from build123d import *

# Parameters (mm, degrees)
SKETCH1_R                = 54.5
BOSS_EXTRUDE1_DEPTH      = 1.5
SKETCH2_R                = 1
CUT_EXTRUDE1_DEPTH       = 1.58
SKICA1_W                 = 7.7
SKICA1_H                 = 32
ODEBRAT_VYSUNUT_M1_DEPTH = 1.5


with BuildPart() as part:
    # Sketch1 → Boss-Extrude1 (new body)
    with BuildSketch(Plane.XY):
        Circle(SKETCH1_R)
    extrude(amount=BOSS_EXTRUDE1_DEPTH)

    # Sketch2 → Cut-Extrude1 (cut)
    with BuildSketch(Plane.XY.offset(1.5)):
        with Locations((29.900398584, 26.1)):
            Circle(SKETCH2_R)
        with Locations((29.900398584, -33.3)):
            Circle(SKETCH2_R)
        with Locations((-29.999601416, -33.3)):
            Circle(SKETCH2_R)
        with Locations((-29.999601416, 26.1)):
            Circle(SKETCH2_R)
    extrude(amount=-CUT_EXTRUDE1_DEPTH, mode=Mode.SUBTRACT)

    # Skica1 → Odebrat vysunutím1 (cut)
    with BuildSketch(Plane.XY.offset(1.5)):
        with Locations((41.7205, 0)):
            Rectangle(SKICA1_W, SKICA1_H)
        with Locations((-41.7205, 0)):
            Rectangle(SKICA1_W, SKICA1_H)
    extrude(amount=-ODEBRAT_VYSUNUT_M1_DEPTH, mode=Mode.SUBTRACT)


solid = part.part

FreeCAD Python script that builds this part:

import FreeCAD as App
import Part
import Sketcher
Q = App.Units.Quantity

doc = App.newDocument("Part")
body = doc.addObject("PartDesign::Body", "Body")

sketch1 = body.newObject("Sketcher::SketchObject", "Sketch")
sketch1.AttachmentSupport = (doc.getObject("XY_Plane"), [""])
sketch1.MapMode = "FlatFace"
sketch1.addGeometry(Part.Circle(App.Vector(0, 0, 0), App.Vector(0, 0, 1), 54.5), False)
sketch1.addConstraint([
    Sketcher.Constraint("Coincident", 0, 3, -1, 1),
    Sketcher.Constraint("Diameter", 0, Q("109 mm")),
])
pad1 = body.newObject("PartDesign::Pad", "Pad")
pad1.Profile = sketch1
pad1.Length = 1.5

sketch2 = body.newObject("Sketcher::SketchObject", "Sketch001")
sketch2.AttachmentSupport = (doc.getObject("XY_Plane"), [""])
sketch2.MapMode = "FlatFace"
sketch2.AttachmentOffset = App.Placement(App.Vector(0, 0, 1.5), App.Rotation())
sketch2.addGeometry([
    Part.Circle(App.Vector(29.900399, 26.1, 0), App.Vector(0, 0, 1), 1),
    Part.Circle(App.Vector(29.900399, -33.3, 0), App.Vector(0, 0, 1), 1),
    Part.Circle(App.Vector(-29.999601, -33.3, 0), App.Vector(0, 0, 1), 1),
    Part.Circle(App.Vector(-29.999601, 26.1, 0), App.Vector(0, 0, 1), 1),
], False)
sketch2.addConstraint([
    Sketcher.Constraint("Equal", 0, 1),
    Sketcher.Constraint("Equal", 1, 2),
    Sketcher.Constraint("Equal", 2, 3),
    Sketcher.Constraint("Horizontal", 1, 3, 2, 3),
    Sketcher.Constraint("Horizontal", 0, 3, 3, 3),
    Sketcher.Constraint("Vertical", 0, 3, 1, 3),
    Sketcher.Constraint("Vertical", 2, 3, 3, 3),
    Sketcher.Constraint("Diameter", 0, Q("2 mm")),
    Sketcher.Constraint("DistanceY", -1, 1, 0, 3, Q("26.1 mm")),
    Sketcher.Constraint("DistanceY", 1, 3, -1, 1, Q("33.3 mm")),
    Sketcher.Constraint("DistanceX", 2, 3, 1, 3, Q("59.9 mm")),
    Sketcher.Constraint("DistanceX", -1, 1, 0, 3, Q("29.900399 mm")),
])
pocket1 = body.newObject("PartDesign::Pocket", "Pocket")
pocket1.Profile = sketch2
pocket1.Length = 1.58

sketch3 = body.newObject("Sketcher::SketchObject", "Sketch002")
sketch3.AttachmentSupport = (doc.getObject("XY_Plane"), [""])
sketch3.MapMode = "FlatFace"
sketch3.AttachmentOffset = App.Placement(App.Vector(0, 0, 1.5), App.Rotation())
sketch3.addGeometry([
    Part.LineSegment(App.Vector(37.8705, 16, 0), App.Vector(37.8705, -16, 0)),
    Part.LineSegment(App.Vector(37.8705, -16, 0), App.Vector(45.5705, -16, 0)),
    Part.LineSegment(App.Vector(45.5705, -16, 0), App.Vector(45.5705, 16, 0)),
    Part.LineSegment(App.Vector(45.5705, 16, 0), App.Vector(37.8705, 16, 0)),
    Part.LineSegment(App.Vector(-45.5705, 16, 0), App.Vector(-45.5705, -16, 0)),
    Part.LineSegment(App.Vector(-45.5705, -16, 0), App.Vector(-37.8705, -16, 0)),
    Part.LineSegment(App.Vector(-37.8705, -16, 0), App.Vector(-37.8705, 16, 0)),
    Part.LineSegment(App.Vector(-37.8705, 16, 0), App.Vector(-45.5705, 16, 0)),
], False)
sketch3.addConstraint([
    Sketcher.Constraint("Coincident", 0, 2, 1, 1),
    Sketcher.Constraint("Coincident", 1, 2, 2, 1),
    Sketcher.Constraint("Coincident", 2, 2, 3, 1),
    Sketcher.Constraint("Coincident", 3, 2, 0, 1),
    Sketcher.Constraint("Coincident", 4, 2, 5, 1),
    Sketcher.Constraint("Coincident", 5, 2, 6, 1),
    Sketcher.Constraint("Coincident", 6, 2, 7, 1),
    Sketcher.Constraint("Coincident", 7, 2, 4, 1),
    Sketcher.Constraint("Vertical", 0),
    Sketcher.Constraint("Horizontal", 1),
    Sketcher.Constraint("Vertical", 2),
    Sketcher.Constraint("Horizontal", 3),
    Sketcher.Constraint("Vertical", 4),
    Sketcher.Constraint("Horizontal", 5),
    Sketcher.Constraint("Vertical", 6),
    Sketcher.Constraint("Horizontal", 7),
    Sketcher.Constraint("Symmetric", 2, 2, 4, 2, -1, 1),
    Sketcher.Constraint("Symmetric", 0, 2, 6, 2, -1, 1),
    Sketcher.Constraint("Horizontal", 1, 2, 4, 2),
    Sketcher.Constraint("DistanceY", 0, 2, 0, 1, Q("32 mm")),
    Sketcher.Constraint("DistanceX", 1, 1, 1, 2, Q("7.7 mm")),
    Sketcher.Constraint("DistanceX", 4, 2, 0, 2, Q("83.441 mm")),
])
pocket2 = body.newObject("PartDesign::Pocket", "Pocket001")
pocket2.Profile = sketch3
pocket2.Length = 1.5

doc.recompute()
